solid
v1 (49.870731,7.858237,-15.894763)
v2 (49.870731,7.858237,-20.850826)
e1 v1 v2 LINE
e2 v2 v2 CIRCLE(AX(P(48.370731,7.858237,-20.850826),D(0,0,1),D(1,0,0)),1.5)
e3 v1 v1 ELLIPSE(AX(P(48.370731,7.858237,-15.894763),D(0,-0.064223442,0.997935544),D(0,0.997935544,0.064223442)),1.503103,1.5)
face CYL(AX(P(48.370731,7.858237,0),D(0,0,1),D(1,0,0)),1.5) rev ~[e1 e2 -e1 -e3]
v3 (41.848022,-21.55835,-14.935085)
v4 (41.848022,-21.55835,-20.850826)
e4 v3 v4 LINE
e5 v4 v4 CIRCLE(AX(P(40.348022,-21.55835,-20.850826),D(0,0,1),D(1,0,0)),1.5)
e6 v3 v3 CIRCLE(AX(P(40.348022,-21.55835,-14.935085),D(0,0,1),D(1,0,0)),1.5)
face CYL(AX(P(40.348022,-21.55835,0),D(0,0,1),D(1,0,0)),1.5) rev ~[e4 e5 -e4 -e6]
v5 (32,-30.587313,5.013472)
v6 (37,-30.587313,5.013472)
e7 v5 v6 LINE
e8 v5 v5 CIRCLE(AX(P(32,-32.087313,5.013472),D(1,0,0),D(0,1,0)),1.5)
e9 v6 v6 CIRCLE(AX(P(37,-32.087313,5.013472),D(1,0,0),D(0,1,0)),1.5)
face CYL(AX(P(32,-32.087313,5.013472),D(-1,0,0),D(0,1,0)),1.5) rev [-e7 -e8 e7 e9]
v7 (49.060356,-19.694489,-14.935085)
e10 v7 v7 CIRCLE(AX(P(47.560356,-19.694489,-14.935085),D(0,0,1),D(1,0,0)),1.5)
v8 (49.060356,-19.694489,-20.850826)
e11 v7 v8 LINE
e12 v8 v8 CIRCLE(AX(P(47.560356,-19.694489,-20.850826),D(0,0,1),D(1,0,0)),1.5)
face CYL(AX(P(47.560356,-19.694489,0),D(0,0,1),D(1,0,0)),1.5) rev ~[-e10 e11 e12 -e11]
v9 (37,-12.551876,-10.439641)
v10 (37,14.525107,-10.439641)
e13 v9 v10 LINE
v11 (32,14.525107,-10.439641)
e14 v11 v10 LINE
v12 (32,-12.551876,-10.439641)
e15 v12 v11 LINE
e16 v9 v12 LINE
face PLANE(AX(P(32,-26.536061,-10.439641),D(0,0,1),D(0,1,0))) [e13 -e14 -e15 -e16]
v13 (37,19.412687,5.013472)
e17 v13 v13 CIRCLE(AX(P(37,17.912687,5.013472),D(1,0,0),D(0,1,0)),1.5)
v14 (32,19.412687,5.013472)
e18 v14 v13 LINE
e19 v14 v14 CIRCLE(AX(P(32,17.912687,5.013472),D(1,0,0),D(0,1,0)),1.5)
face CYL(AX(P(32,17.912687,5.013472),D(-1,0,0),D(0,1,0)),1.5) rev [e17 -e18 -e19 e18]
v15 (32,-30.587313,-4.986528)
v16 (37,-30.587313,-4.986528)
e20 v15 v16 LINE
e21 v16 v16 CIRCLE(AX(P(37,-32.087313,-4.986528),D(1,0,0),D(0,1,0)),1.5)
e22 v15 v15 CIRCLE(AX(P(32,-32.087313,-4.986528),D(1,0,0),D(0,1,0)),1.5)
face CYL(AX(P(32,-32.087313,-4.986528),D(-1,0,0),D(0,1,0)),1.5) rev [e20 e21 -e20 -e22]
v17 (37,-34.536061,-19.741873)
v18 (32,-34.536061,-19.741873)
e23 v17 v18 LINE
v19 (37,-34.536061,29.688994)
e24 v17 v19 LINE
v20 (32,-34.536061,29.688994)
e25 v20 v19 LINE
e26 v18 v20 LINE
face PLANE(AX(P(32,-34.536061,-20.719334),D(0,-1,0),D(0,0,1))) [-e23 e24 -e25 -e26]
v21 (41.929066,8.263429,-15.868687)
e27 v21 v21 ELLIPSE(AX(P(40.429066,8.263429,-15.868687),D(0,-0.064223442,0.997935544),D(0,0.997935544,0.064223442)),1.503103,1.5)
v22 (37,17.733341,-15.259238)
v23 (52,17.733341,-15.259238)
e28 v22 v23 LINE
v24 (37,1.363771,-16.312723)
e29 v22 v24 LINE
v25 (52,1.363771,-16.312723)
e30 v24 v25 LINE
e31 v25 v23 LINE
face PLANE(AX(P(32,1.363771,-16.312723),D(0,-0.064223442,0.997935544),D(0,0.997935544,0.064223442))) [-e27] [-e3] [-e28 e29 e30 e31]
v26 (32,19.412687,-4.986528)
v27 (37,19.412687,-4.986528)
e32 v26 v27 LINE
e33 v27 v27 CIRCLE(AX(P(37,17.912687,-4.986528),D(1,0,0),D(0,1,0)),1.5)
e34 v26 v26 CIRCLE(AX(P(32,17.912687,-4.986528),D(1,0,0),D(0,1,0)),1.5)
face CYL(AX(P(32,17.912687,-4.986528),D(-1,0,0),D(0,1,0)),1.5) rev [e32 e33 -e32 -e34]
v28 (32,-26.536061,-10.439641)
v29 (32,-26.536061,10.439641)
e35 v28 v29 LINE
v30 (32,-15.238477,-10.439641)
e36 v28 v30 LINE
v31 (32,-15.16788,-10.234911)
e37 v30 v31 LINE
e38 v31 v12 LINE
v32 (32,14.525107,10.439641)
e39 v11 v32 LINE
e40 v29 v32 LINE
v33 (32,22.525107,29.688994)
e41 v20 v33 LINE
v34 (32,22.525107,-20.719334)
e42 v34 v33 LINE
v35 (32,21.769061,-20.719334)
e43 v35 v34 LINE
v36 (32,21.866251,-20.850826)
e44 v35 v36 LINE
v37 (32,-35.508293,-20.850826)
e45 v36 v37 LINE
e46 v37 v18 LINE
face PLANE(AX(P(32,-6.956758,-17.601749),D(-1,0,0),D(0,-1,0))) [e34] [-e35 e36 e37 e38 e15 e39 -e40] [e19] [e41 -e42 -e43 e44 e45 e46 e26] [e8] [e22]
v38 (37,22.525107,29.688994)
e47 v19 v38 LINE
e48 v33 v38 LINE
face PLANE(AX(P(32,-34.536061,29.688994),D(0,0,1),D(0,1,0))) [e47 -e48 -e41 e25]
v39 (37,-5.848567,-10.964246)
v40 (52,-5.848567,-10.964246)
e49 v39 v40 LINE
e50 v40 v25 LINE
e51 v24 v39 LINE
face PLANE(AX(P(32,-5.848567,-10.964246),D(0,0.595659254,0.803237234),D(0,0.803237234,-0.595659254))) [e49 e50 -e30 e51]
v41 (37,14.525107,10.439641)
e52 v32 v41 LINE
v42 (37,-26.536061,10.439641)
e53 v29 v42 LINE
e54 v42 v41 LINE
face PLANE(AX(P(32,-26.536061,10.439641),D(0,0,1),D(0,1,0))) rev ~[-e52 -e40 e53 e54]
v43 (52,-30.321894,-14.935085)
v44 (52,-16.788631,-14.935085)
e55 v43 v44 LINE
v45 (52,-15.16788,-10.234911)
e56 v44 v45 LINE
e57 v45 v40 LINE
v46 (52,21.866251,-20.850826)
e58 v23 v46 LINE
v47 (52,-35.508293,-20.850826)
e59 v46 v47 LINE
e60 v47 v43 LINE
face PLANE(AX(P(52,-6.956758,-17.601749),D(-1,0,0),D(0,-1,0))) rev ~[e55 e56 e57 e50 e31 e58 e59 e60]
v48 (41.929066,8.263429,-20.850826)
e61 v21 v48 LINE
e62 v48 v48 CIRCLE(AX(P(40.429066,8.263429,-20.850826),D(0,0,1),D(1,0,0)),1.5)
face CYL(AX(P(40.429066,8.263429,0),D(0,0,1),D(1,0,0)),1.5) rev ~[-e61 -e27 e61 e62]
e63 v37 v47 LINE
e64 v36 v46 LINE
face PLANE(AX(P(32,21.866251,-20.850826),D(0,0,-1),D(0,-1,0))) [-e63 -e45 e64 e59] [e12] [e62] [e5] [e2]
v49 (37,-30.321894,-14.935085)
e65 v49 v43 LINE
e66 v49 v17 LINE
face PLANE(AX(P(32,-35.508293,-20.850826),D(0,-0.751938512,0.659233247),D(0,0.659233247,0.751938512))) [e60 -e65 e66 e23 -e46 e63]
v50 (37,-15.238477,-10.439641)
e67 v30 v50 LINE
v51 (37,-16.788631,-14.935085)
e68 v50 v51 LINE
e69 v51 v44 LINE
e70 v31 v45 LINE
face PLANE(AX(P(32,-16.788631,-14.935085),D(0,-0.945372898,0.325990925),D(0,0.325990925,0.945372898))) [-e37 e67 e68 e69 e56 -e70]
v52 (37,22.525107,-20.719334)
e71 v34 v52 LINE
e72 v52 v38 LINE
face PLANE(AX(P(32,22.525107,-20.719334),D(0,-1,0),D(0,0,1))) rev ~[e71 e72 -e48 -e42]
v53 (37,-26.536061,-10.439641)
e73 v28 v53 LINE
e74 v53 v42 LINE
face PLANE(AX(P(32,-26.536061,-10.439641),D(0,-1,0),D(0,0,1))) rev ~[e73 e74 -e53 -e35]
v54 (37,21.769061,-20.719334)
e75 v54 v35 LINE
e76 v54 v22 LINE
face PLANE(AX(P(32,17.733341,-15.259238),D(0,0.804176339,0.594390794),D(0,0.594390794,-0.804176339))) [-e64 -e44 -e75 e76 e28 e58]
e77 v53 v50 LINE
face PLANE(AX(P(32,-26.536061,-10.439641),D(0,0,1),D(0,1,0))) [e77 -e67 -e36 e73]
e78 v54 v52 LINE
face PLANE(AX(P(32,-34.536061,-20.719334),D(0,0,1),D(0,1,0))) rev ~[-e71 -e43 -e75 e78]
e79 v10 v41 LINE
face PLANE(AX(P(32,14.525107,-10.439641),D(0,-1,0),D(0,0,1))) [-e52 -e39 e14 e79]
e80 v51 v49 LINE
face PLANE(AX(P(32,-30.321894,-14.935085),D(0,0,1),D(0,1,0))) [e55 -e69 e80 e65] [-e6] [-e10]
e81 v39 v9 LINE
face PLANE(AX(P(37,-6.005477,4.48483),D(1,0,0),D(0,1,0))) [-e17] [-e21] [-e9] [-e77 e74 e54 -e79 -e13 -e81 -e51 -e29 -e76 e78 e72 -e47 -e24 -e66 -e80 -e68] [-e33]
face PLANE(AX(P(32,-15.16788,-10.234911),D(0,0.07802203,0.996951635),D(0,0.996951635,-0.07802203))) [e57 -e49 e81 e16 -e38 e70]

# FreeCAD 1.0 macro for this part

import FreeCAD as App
import Part
import Sketcher

doc = App.newDocument("Part")
params = doc.addObject("Spreadsheet::Sheet", "Params")
for row, (alias, value) in enumerate([
    ("sketch1_diameter", "3 mm"),
    ("pad1_length", "100 mm"),
    ("pad2_length", "20 mm"),
    ("sketch3_diameter", "3 mm"),
    ("pad3_length", "5 mm"),
], start=1):
    params.set(f"A{row}", alias)
    params.set(f"B{row}", "=" + value)
    params.setAlias(f"B{row}", alias)

body = doc.addObject("PartDesign::Body", "Body")
body.AllowCompound = True

# Sketch on XY plane
sketch1 = body.newObject("Sketcher::SketchObject", "Sketch")
sketch1.AttachmentSupport = (doc.getObject("XY_Plane"), [""])
sketch1.MapMode = "FlatFace"
sketch1.addGeometry(Part.Circle(App.Vector(40.4, 8.3, 0), App.Vector(0, 0, 1), 1.5), False)
sketch1.addGeometry(Part.Circle(App.Vector(48.4, 7.9, 0), App.Vector(0, 0, 1), 1.5), False)
sketch1.addGeometry(Part.Circle(App.Vector(40.3, -21.6, 0), App.Vector(0, 0, 1), 1.5), False)
sketch1.addGeometry(Part.Circle(App.Vector(47.6, -19.7, 0), App.Vector(0, 0, 1), 1.5), False)
sketch1.addConstraint(Sketcher.Constraint("Equal", 0, 1))
sketch1.addConstraint(Sketcher.Constraint("Equal", 1, 2))
sketch1.addConstraint(Sketcher.Constraint("Equal", 2, 3))
sketch1.addConstraint(Sketcher.Constraint("Diameter", 0, 3.0))
sketch1.addConstraint(Sketcher.Constraint("DistanceY", -1, 1, 0, 3, 8.263429))
sketch1.addConstraint(Sketcher.Constraint("DistanceX", -1, 1, 1, 3, 48.370731))
sketch1.addConstraint(Sketcher.Constraint("DistanceY", 2, 3, -1, 1, 21.55835))
sketch1.addConstraint(Sketcher.Constraint("DistanceY", 3, 3, -1, 1, 19.694489))
sketch1.addConstraint(Sketcher.Constraint("DistanceX", 2, 3, 1, 3, 8.022709))
sketch1.addConstraint(Sketcher.Constraint("DistanceX", 0, 3, 3, 3, 7.13129))
sketch1.addConstraint(Sketcher.Constraint("DistanceX", -1, 1, 0, 3, 40.429066))
sketch1.addConstraint(Sketcher.Constraint("DistanceY", -1, 1, 1, 3, 7.858237))
sketch1.setExpression("Constraints[3]", "Params.sketch1_diameter")
pad1 = body.newObject("PartDesign::Pad", "Pad")
pad1.Profile = sketch1
pad1.setExpression("Length", "Params.pad1_length")
pad1.Reversed = True
body2 = doc.addObject("PartDesign::Body", "Body001")

# Sketch on YZ plane
sketch2 = body2.newObject("Sketcher::SketchObject", "Sketch001")
sketch2.AttachmentSupport = (doc.getObject("YZ_Plane001"), [""])
sketch2.MapMode = "FlatFace"
sketch2.AttachmentOffset = App.Placement(App.Vector(0, 0, 32), App.Rotation())
sketch2.addGeometry(Part.LineSegment(App.Vector(-30.3, -14.9, 0), App.Vector(-35.5, -20.9, 0)), False)
sketch2.addGeometry(Part.LineSegment(App.Vector(-35.5, -20.9, 0), App.Vector(21.9, -20.9, 0)), False)
sketch2.addGeometry(Part.LineSegment(App.Vector(21.9, -20.9, 0), App.Vector(17.7, -15.3, 0)), False)
sketch2.addGeometry(Part.LineSegment(App.Vector(17.7, -15.3, 0), App.Vector(1.4, -16.3, 0)), False)
sketch2.addGeometry(Part.LineSegment(App.Vector(1.4, -16.3, 0), App.Vector(-5.8, -11, 0)), False)
sketch2.addGeometry(Part.LineSegment(App.Vector(-5.8, -11, 0), App.Vector(-15.2, -10.2, 0)), False)
sketch2.addGeometry(Part.LineSegment(App.Vector(-15.2, -10.2, 0), App.Vector(-16.8, -14.9, 0)), False)
sketch2.addGeometry(Part.LineSegment(App.Vector(-16.8, -14.9, 0), App.Vector(-30.3, -14.9, 0)), False)
sketch2.addConstraint(Sketcher.Constraint("Coincident", 0, 2, 1, 1))
sketch2.addConstraint(Sketcher.Constraint("Coincident", 1, 2, 2, 1))
sketch2.addConstraint(Sketcher.Constraint("Coincident", 2, 2, 3, 1))
sketch2.addConstraint(Sketcher.Constraint("Coincident", 3, 2, 4, 1))
sketch2.addConstraint(Sketcher.Constraint("Coincident", 4, 2, 5, 1))
sketch2.addConstraint(Sketcher.Constraint("Coincident", 5, 2, 6, 1))
sketch2.addConstraint(Sketcher.Constraint("Coincident", 6, 2, 7, 1))
sketch2.addConstraint(Sketcher.Constraint("Coincident", 7, 2, 0, 1))
sketch2.addConstraint(Sketcher.Constraint("Horizontal", 1))
sketch2.addConstraint(Sketcher.Constraint("Horizontal", 7))
sketch2.addConstraint(Sketcher.Constraint("DistanceX", 6, 2, 3, 2, 18.152402))
sketch2.addConstraint(Sketcher.Constraint("DistanceX", 0, 2, 7, 2, 5.186399))
sketch2.addConstraint(Sketcher.Constraint("Distance", 0, 7.86732))
sketch2.addConstraint(Sketcher.Constraint("Distance", 4, 8.979088))
sketch2.addConstraint(Sketcher.Constraint("Distance", 5, 9.347809))
sketch2.addConstraint(Sketcher.Constraint("DistanceX", 1, 1, 1, 2, 57.374544))
sketch2.addConstraint(Sketcher.Constraint("DistanceX", 7, 2, 7, 1, 13.533263))
sketch2.addConstraint(Sketcher.Constraint("DistanceX", -1, 1, 1, 2, 21.866251))
sketch2.addConstraint(Sketcher.Constraint("DistanceX", -1, 1, 2, 2, 17.733341))
sketch2.addConstraint(Sketcher.Constraint("DistanceX", 5, 2, -1, 1, 15.16788))
sketch2.addConstraint(Sketcher.Constraint("DistanceY", 5, 2, -1, 1, 10.234911))
sketch2.addConstraint(Sketcher.Constraint("DistanceY", 1, 2, 2, 2, 5.591588))
sketch2.addConstraint(Sketcher.Constraint("DistanceY", 1, 2, 4, 2, 9.88658))
sketch2.addConstraint(Sketcher.Constraint("DistanceY", 3, 2, 5, 2, 6.077812))
pad2 = body2.newObject("PartDesign::Pad", "Pad001")
pad2.Profile = sketch2
pad2.setExpression("Length", "Params.pad2_length")
body3 = doc.addObject("PartDesign::Body", "Body002")

# Sketch on YZ plane
sketch3 = body3.newObject("Sketcher::SketchObject", "Sketch002")
sketch3.AttachmentSupport = (doc.getObject("YZ_Plane002"), [""])
sketch3.MapMode = "FlatFace"
sketch3.AttachmentOffset = App.Placement(App.Vector(0, 0, 32), App.Rotation())
sketch3.addGeometry(Part.LineSegment(App.Vector(-34.5, 29.7, 0), App.Vector(-34.5, -20.7, 0)), False)
sketch3.addGeometry(Part.LineSegment(App.Vector(-34.5, -20.7, 0), App.Vector(22.5, -20.7, 0)), False)
sketch3.addGeometry(Part.LineSegment(App.Vector(22.5, -20.7, 0), App.Vector(22.5, 29.7, 0)), False)
sketch3.addGeometry(Part.LineSegment(App.Vector(22.5, 29.7, 0), App.Vector(-34.5, 29.7, 0)), False)
sketch3.addGeometry(Part.Circle(App.Vector(-32.1, -5, 0), App.Vector(0, 0, 1), 1.5), False)
sketch3.addGeometry(Part.Circle(App.Vector(17.9, -5, 0), App.Vector(0, 0, 1), 1.5), False)
sketch3.addGeometry(Part.Circle(App.Vector(-32.1, 5, 0), App.Vector(0, 0, 1), 1.5), False)
sketch3.addGeometry(Part.LineSegment(App.Vector(14.5, -10.4, 0), App.Vector(-26.5, -10.4, 0)), False)
sketch3.addGeometry(Part.LineSegment(App.Vector(-26.5, -10.4, 0), App.Vector(-26.5, 10.4, 0)), False)
sketch3.addGeometry(Part.LineSegment(App.Vector(-26.5, 10.4, 0), App.Vector(14.5, 10.4, 0)), False)
sketch3.addGeometry(Part.LineSegment(App.Vector(14.5, 10.4, 0), App.Vector(14.5, -10.4, 0)), False)
sketch3.addGeometry(Part.Circle(App.Vector(17.9, 5, 0), App.Vector(0, 0, 1), 1.5), False)
sketch3.addConstraint(Sketcher.Constraint("Coincident", 0, 2, 1, 1))
sketch3.addConstraint(Sketcher.Constraint("Coincident", 1, 2, 2, 1))
sketch3.addConstraint(Sketcher.Constraint("Coincident", 2, 2, 3, 1))
sketch3.addConstraint(Sketcher.Constraint("Coincident", 3, 2, 0, 1))
sketch3.addConstraint(Sketcher.Constraint("Coincident", 7, 2, 8, 1))
sketch3.addConstraint(Sketcher.Constraint("Coincident", 8, 2, 9, 1))
sketch3.addConstraint(Sketcher.Constraint("Coincident", 9, 2, 10, 1))
sketch3.addConstraint(Sketcher.Constraint("Coincident", 10, 2, 7, 1))
sketch3.addConstraint(Sketcher.Constraint("Vertical", 0))
sketch3.addConstraint(Sketcher.Constraint("Horizontal", 1))
sketch3.addConstraint(Sketcher.Constraint("Vertical", 2))
sketch3.addConstraint(Sketcher.Constraint("Horizontal", 3))
sketch3.addConstraint(Sketcher.Constraint("Horizontal", 7))
sketch3.addConstraint(Sketcher.Constraint("Vertical", 8))
sketch3.addConstraint(Sketcher.Constraint("Horizontal", 9))
sketch3.addConstraint(Sketcher.Constraint("Vertical", 10))
sketch3.addConstraint(Sketcher.Constraint("Equal", 4, 5))
sketch3.addConstraint(Sketcher.Constraint("Equal", 5, 6))
sketch3.addConstraint(Sketcher.Constraint("Equal", 6, 11))
sketch3.addConstraint(Sketcher.Constraint("Horizontal", 4, 3, 5, 3))
sketch3.addConstraint(Sketcher.Constraint("Horizontal", 6, 3, 11, 3))
sketch3.addConstraint(Sketcher.Constraint("Vertical", 4, 3, 6, 3))
sketch3.addConstraint(Sketcher.Constraint("Vertical", 5, 3, 11, 3))
sketch3.addConstraint(Sketcher.Constraint("Diameter", 4, 3.0))
sketch3.addConstraint(Sketcher.Constraint("DistanceX", 4, 3, 5, 3, 50.0))
sketch3.addConstraint(Sketcher.Constraint("DistanceY", 4, 3, 6, 3, 10.0))
sketch3.addConstraint(Sketcher.Constraint("DistanceX", 0, 2, 7, 2, 8.0))
sketch3.addConstraint(Sketcher.Constraint("DistanceX", 9, 2, 2, 2, 8.0))
sketch3.addConstraint(Sketcher.Constraint("DistanceX", 7, 2, 7, 1, 41.061168))
sketch3.addConstraint(Sketcher.Constraint("DistanceY", 8, 1, 8, 2, 20.879282))
sketch3.addConstraint(Sketcher.Constraint("DistanceY", 0, 2, 0, 1, 50.408328))
sketch3.addConstraint(Sketcher.Constraint("DistanceX", 0, 2, -1, 1, 34.536061))
sketch3.addConstraint(Sketcher.Constraint("DistanceY", 7, 2, -1, 1, 10.439641))
sketch3.addConstraint(Sketcher.Constraint("DistanceX", 5, 3, 1, 2, 4.61242))
sketch3.addConstraint(Sketcher.Constraint("DistanceY", 6, 3, 8, 2, 5.426169))
sketch3.addConstraint(Sketcher.Constraint("DistanceY", 0, 2, -1, 1, 20.719334))
sketch3.setExpression("Constraints[23]", "Params.sketch3_diameter")
pad3 = body3.newObject("PartDesign::Pad", "Pad002")
pad3.Profile = sketch3
pad3.setExpression("Length", "Params.pad3_length")
doc.recompute()

boolean = body3.newObject("PartDesign::Boolean", "Boolean")
boolean.Type = "Fuse"
boolean.addObjects([body2])
doc.recompute()

boolean2 = body3.newObject("PartDesign::Boolean", "Boolean001")
boolean2.Type = "Cut"
boolean2.addObjects([body])

doc.recompute()
